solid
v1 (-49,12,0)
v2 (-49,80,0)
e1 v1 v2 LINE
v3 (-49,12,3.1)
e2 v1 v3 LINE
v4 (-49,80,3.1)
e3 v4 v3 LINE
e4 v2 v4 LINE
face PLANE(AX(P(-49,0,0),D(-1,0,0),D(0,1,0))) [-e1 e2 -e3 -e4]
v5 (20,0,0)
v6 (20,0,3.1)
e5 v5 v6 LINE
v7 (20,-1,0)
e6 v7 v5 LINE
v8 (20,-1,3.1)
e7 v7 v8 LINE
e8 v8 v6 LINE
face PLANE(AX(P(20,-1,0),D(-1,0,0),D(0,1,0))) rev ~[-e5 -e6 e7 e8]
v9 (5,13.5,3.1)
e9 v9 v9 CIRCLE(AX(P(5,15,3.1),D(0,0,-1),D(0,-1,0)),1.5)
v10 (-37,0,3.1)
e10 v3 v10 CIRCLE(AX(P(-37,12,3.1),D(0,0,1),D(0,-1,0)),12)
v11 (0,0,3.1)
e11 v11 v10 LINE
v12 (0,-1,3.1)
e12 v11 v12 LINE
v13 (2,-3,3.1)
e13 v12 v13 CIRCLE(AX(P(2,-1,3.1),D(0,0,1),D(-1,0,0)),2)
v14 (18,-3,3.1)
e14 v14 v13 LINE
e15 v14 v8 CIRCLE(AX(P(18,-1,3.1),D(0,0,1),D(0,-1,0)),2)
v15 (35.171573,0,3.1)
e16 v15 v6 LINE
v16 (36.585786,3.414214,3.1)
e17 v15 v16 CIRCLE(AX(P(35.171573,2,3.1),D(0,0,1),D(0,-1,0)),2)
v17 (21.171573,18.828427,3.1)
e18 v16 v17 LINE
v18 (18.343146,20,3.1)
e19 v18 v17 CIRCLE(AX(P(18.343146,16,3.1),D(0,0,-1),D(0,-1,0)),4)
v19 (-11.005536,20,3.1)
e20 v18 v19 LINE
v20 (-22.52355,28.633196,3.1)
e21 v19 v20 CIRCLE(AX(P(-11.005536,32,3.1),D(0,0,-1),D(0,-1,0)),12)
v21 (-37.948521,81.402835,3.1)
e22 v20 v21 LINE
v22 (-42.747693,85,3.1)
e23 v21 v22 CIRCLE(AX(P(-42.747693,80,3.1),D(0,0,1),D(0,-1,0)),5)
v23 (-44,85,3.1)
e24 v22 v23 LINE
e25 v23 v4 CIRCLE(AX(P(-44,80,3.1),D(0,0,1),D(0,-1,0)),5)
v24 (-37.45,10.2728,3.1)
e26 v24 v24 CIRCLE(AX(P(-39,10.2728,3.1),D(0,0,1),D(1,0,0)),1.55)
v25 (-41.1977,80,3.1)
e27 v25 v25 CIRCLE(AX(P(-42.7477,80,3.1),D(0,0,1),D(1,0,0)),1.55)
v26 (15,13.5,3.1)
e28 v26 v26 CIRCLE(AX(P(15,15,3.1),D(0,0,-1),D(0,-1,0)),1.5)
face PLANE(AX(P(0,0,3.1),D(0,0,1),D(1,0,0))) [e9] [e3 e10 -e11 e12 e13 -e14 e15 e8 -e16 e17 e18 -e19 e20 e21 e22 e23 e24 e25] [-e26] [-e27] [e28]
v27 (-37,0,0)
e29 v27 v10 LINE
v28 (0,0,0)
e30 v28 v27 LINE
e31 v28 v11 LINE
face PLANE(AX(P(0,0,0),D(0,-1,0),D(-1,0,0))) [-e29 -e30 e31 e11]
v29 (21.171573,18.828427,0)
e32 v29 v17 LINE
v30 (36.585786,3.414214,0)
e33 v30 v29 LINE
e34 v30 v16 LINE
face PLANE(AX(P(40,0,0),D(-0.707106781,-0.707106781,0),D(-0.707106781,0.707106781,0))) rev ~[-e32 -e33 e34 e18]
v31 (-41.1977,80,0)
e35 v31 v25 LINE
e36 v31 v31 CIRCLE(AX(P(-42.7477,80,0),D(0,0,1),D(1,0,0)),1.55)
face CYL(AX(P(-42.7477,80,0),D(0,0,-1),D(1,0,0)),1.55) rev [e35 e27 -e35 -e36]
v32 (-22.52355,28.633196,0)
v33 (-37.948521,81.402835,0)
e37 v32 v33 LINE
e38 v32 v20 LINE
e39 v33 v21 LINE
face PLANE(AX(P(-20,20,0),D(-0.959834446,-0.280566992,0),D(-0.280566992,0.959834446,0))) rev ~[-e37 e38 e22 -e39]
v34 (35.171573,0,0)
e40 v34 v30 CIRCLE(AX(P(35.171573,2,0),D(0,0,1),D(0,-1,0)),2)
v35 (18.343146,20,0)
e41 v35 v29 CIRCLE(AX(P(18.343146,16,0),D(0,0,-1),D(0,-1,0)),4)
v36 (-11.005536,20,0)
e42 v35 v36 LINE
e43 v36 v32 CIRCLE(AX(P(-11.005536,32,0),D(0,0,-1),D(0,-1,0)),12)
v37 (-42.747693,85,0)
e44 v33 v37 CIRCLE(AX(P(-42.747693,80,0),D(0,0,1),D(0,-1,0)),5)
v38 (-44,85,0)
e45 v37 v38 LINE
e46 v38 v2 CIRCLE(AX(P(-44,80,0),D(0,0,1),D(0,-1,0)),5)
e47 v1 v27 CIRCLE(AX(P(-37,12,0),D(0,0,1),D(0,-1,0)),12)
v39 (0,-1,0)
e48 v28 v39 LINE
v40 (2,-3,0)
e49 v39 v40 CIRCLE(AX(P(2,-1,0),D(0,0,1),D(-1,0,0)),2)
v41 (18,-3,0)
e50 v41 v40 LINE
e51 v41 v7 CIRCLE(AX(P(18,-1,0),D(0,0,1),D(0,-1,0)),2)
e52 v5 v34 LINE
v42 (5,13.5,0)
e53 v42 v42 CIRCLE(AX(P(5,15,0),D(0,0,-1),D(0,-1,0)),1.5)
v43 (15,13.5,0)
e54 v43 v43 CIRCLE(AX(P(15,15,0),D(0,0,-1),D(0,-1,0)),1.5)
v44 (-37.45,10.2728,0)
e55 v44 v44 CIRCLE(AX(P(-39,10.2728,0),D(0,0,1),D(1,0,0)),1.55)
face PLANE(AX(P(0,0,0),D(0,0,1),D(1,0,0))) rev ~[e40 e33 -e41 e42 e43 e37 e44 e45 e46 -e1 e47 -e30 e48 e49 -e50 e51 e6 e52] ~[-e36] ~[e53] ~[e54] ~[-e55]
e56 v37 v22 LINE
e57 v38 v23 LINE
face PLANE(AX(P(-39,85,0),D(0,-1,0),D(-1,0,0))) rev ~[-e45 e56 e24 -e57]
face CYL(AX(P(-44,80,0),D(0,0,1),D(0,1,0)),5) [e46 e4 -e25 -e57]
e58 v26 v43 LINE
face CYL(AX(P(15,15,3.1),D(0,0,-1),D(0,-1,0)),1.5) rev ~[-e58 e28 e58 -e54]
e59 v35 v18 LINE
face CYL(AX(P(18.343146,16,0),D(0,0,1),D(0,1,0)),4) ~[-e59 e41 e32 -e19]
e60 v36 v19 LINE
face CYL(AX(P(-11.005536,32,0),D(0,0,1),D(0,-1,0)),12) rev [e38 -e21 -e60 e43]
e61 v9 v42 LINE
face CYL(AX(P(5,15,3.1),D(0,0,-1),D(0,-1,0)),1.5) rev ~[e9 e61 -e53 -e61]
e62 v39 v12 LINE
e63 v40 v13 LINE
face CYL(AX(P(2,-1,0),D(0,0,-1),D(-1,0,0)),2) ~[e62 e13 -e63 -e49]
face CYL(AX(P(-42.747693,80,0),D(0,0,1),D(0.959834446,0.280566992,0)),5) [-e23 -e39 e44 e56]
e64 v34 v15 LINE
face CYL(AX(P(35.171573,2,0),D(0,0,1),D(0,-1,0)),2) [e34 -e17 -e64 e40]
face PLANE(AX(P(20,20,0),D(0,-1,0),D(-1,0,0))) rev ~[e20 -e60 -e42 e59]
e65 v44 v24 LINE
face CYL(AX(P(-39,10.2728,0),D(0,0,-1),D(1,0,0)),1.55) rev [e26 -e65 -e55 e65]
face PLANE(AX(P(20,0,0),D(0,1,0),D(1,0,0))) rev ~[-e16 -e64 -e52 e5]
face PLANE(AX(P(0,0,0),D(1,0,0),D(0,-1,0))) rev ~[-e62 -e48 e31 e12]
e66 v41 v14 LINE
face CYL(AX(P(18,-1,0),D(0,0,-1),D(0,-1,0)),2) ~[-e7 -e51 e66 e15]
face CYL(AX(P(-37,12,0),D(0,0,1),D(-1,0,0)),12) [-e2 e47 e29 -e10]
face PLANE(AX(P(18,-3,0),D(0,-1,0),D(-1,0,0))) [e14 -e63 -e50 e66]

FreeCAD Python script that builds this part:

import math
import FreeCAD as App
import Part
import Sketcher

V = App.Vector
Q = App.Units.Quantity


def edges_at(feature, points):
    """Names of the edges that pass closest to the given points."""
    edges = feature.Shape.Edges
    near = lambda p: min(range(len(edges)), key=lambda i: edges[i].distToShape(Part.Vertex(*p))[0])
    return sorted({f"Edge{near(p) + 1}" for p in points})

doc = App.newDocument("Part")
body = doc.addObject("PartDesign::Body", "Body")

# Sketch on XY plane
sketch1 = body.newObject("Sketcher::SketchObject", "Sketch")
sketch1.AttachmentSupport = (doc.getObject("XY_Plane"), [""])
sketch1.MapMode = "FlatFace"
sketch1.addGeometry(Part.LineSegment(V(20, -1, 0), V(20, 0, 0)), False)
sketch1.addGeometry(Part.LineSegment(V(20, 0, 0), V(40, 0, 0)), False)
sketch1.addGeometry(Part.LineSegment(V(40, 0, 0), V(20, 20, 0)), False)
sketch1.addGeometry(Part.LineSegment(V(20, 20, 0), V(-20, 20, 0)), False)
sketch1.addGeometry(Part.LineSegment(V(-20, 20, 0), V(-39, 85, 0)), False)
sketch1.addGeometry(Part.LineSegment(V(-39, 85, 0), V(-49, 85, 0)), False)
sketch1.addGeometry(Part.LineSegment(V(-49, 85, 0), V(-49, 0, 0)), False)
sketch1.addGeometry(Part.LineSegment(V(-49, 0, 0), V(0, 0, 0)), False)
sketch1.addGeometry(Part.LineSegment(V(0, 0, 0), V(0, -1, 0)), False)
sketch1.addGeometry(Part.ArcOfCircle(Part.Circle(V(2, -1, 0), V(0, 0, 1), 2), math.radians(180), math.radians(270)), False)
sketch1.addGeometry(Part.LineSegment(V(2, -3, 0), V(18, -3, 0)), False)
sketch1.addGeometry(Part.ArcOfCircle(Part.Circle(V(18, -1, 0), V(0, 0, 1), 2), math.radians(-90), math.radians(0)), False)
sketch1.addGeometry(Part.Circle(V(-39, 10.2728, 0), V(0, 0, 1), 1.55), False)
sketch1.addGeometry(Part.Circle(V(-42.7477, 80, 0), V(0, 0, 1), 1.55), False)
sketch1.addConstraint(Sketcher.Constraint("Coincident", 0, 2, 1, 1))
sketch1.addConstraint(Sketcher.Constraint("Coincident", 1, 2, 2, 1))
sketch1.addConstraint(Sketcher.Constraint("Coincident", 2, 2, 3, 1))
sketch1.addConstraint(Sketcher.Constraint("Coincident", 3, 2, 4, 1))
sketch1.addConstraint(Sketcher.Constraint("Coincident", 4, 2, 5, 1))
sketch1.addConstraint(Sketcher.Constraint("Coincident", 5, 2, 6, 1))
sketch1.addConstraint(Sketcher.Constraint("Coincident", 6, 2, 7, 1))
sketch1.addConstraint(Sketcher.Constraint("Coincident", 7, 2, 8, 1))
sketch1.addConstraint(Sketcher.Constraint("Tangent", 8, 2, 9, 1))
sketch1.addConstraint(Sketcher.Constraint("Tangent", 9, 2, 10, 1))
sketch1.addConstraint(Sketcher.Constraint("Tangent", 10, 2, 11, 1))
sketch1.addConstraint(Sketcher.Constraint("Tangent", 11, 2, 0, 1))
sketch1.addConstraint(Sketcher.Constraint("Vertical", 0))
sketch1.addConstraint(Sketcher.Constraint("Horizontal", 1))
sketch1.addConstraint(Sketcher.Constraint("Horizontal", 3))
sketch1.addConstraint(Sketcher.Constraint("Horizontal", 5))
sketch1.addConstraint(Sketcher.Constraint("Vertical", 6))
sketch1.addConstraint(Sketcher.Constraint("Horizontal", 7))
sketch1.addConstraint(Sketcher.Constraint("Vertical", 8))
sketch1.addConstraint(Sketcher.Constraint("Horizontal", 10))
sketch1.addConstraint(Sketcher.Constraint("Coincident", 7, 2, -1, 1))
sketch1.addConstraint(Sketcher.Constraint("Equal", 9, 11))
sketch1.addConstraint(Sketcher.Constraint("Equal", 12, 13))
sketch1.addConstraint(Sketcher.Constraint("PointOnObject", 0, 2, -1))
sketch1.addConstraint(Sketcher.Constraint("Vertical", 0, 2, 2, 2))
sketch1.addConstraint(Sketcher.Constraint("Vertical", 12, 3, 4, 2))
sketch1.addConstraint(Sketcher.Constraint("Radius", 9, Q("2 mm")))
sketch1.addConstraint(Sketcher.Constraint("Diameter", 12, Q("3.1 mm")))
sketch1.addConstraint(Sketcher.Constraint("DistanceX", 1, 1, 1, 2, Q("20 mm")))
sketch1.addConstraint(Sketcher.Constraint("DistanceX", 3, 2, 3, 1, Q("40 mm")))
sketch1.addConstraint(Sketcher.Constraint("DistanceX", 5, 2, 5, 1, Q("10 mm")))
sketch1.addConstraint(Sketcher.Constraint("DistanceY", 6, 2, 6, 1, Q("85 mm")))
sketch1.addConstraint(Sketcher.Constraint("DistanceX", -1, 1, 0, 2, Q("20 mm")))
sketch1.addConstraint(Sketcher.Constraint("DistanceY", -1, 1, 2, 2, Q("20 mm")))
sketch1.addConstraint(Sketcher.Constraint("DistanceX", 7, 1, 7, 2, Q("49 mm")))
sketch1.addConstraint(Sketcher.Constraint("DistanceY", 0, 1, 0, 2, Q("1 mm")))
sketch1.addConstraint(Sketcher.Constraint("DistanceY", -1, 1, 13, 3, Q("80 mm")))
sketch1.addConstraint(Sketcher.Constraint("DistanceY", -1, 1, 12, 3, Q("10.2728 mm")))
sketch1.addConstraint(Sketcher.Constraint("DistanceX", 13, 3, -1, 1, Q("42.7477 mm")))
pad1 = body.newObject("PartDesign::Pad", "Pad")
pad1.Profile = sketch1
pad1.Length = 3.1
doc.recompute()

fillet = body.newObject("PartDesign::Fillet", "Fillet")
fillet.Base = (pad1, edges_at(pad1, [(40, 0, 1.55)]))
fillet.Radius = 2
doc.recompute()

fillet2 = body.newObject("PartDesign::Fillet", "Fillet001")
fillet2.Base = (fillet, edges_at(fillet, [(-49, 0, 1.55)]))
fillet2.Radius = 12
doc.recompute()

fillet3 = body.newObject("PartDesign::Fillet", "Fillet002")
fillet3.Base = (fillet2, edges_at(fillet2, [(20, 20, 1.55)]))
fillet3.Radius = 4
doc.recompute()

fillet4 = body.newObject("PartDesign::Fillet", "Fillet003")
fillet4.Base = (fillet3, edges_at(fillet3, [(-20, 20, 1.55)]))
fillet4.Radius = 12
doc.recompute()

fillet5 = body.newObject("PartDesign::Fillet", "Fillet004")
fillet5.Base = (fillet4, edges_at(fillet4, [(-39, 85, 1.55), (-49, 85, 1.55)]))
fillet5.Radius = 5

# Sketch on XY plane
sketch2 = body.newObject("Sketcher::SketchObject", "Sketch001")
sketch2.AttachmentSupport = (doc.getObject("XY_Plane"), [""])
sketch2.MapMode = "FlatFace"
sketch2.AttachmentOffset = App.Placement(V(0, 0, 3.1), App.Rotation())
sketch2.addGeometry(Part.Circle(V(5, 15, 0), V(0, 0, 1), 1.5), False)
sketch2.addGeometry(Part.Circle(V(15, 15, 0), V(0, 0, 1), 1.5), False)
sketch2.addConstraint(Sketcher.Constraint("Equal", 0, 1))
sketch2.addConstraint(Sketcher.Constraint("Horizontal", 0, 3, 1, 3))
sketch2.addConstraint(Sketcher.Constraint("Diameter", 0, Q("3 mm")))
sketch2.addConstraint(Sketcher.Constraint("DistanceX", -1, 1, 0, 3, Q("5 mm")))
sketch2.addConstraint(Sketcher.Constraint("DistanceY", -1, 1, 0, 3, Q("15 mm")))
sketch2.addConstraint(Sketcher.Constraint("DistanceX", -1, 1, 1, 3, Q("15 mm")))
doc.recompute()
hole = body.newObject("PartDesign::Hole", "Hole")
hole.Profile = sketch2
hole.ThreadType = "None"
hole.Diameter = 3
hole.DepthType = "ThroughAll"

doc.recompute()
